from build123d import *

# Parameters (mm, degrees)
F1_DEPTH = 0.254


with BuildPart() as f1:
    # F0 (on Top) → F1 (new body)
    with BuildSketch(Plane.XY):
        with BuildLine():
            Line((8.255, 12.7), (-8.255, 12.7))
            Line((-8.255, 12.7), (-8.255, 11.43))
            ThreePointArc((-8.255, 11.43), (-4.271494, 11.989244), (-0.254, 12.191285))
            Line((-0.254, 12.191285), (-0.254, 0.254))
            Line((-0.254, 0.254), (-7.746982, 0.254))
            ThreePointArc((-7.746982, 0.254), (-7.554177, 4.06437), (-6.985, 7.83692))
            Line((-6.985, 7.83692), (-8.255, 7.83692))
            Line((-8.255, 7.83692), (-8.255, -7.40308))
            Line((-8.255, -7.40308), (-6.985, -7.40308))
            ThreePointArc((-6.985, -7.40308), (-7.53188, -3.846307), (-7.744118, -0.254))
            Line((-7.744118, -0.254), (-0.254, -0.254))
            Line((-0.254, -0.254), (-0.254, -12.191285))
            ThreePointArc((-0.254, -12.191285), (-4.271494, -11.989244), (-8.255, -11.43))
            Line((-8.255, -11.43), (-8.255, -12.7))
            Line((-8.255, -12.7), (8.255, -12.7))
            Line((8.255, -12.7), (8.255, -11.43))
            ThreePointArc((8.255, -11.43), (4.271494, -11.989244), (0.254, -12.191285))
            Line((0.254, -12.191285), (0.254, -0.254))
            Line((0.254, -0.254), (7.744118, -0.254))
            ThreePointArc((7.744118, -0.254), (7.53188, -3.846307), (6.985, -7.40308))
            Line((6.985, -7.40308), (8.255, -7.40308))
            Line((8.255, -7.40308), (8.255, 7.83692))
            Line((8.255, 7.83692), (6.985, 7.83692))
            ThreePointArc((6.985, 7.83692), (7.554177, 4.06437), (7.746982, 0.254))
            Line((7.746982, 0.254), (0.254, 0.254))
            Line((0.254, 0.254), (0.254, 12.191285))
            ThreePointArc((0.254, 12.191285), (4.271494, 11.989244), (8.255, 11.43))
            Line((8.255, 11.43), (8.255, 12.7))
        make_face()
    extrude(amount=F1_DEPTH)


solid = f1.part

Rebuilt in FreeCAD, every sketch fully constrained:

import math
import FreeCAD as App
import Part
import Sketcher
from FreeCAD import Vector
Q = App.Units.Quantity

doc = App.newDocument("Part")
body = doc.addObject("PartDesign::Body", "Body")

sketch1 = body.newObject("Sketcher::SketchObject", "Sketch")
sketch1.AttachmentSupport = (doc.getObject("XY_Plane"), [""])
sketch1.MapMode = "FlatFace"
sketch1.addGeometry([
    Part.LineSegment(Vector(8.255, 12.7, 0), Vector(-8.255, 12.7, 0)),
    Part.LineSegment(Vector(-8.255, 12.7, 0), Vector(-8.255, 11.43, 0)),
    Part.ArcOfCircle(Part.Circle(Vector(0.000013, -32.903706, 0), Vector(0, 0, 1), 45.095706), math.radians(90.322735), math.radians(100.54778)),
    Part.LineSegment(Vector(-0.254, 12.191285, 0), Vector(-0.254, 0.254, 0)),
    Part.LineSegment(Vector(-0.254, 0.254, 0), Vector(-7.746982, 0.254, 0)),
    Part.ArcOfCircle(Part.Circle(Vector(30.733964, 0.216924, 0), Vector(0, 0, 1), 38.480964), math.radians(168.578809), math.radians(179.944797)),
    Part.LineSegment(Vector(-6.985, 7.83692, 0), Vector(-8.255, 7.83692, 0)),
    Part.LineSegment(Vector(-8.255, 7.83692, 0), Vector(-8.255, -7.40308, 0)),
    Part.LineSegment(Vector(-8.255, -7.40308, 0), Vector(-6.985, -7.40308, 0)),
    Part.ArcOfCircle(Part.Circle(Vector(30.733882, 0.216905, 0), Vector(0, 0, 1), 38.480881), math.radians(-179.298832), math.radians(-168.5788)),
    Part.LineSegment(Vector(-7.744118, -0.254, 0), Vector(-0.254, -0.254, 0)),
    Part.LineSegment(Vector(-0.254, -0.254, 0), Vector(-0.254, -12.191285, 0)),
    Part.ArcOfCircle(Part.Circle(Vector(0.000013, 32.903706, 0), Vector(0, 0, 1), 45.095706), math.radians(-100.54778), math.radians(-90.322735)),
    Part.LineSegment(Vector(-8.255, -11.43, 0), Vector(-8.255, -12.7, 0)),
    Part.LineSegment(Vector(-8.255, -12.7, 0), Vector(8.255, -12.7, 0)),
    Part.LineSegment(Vector(8.255, -12.7, 0), Vector(8.255, -11.43, 0)),
    Part.ArcOfCircle(Part.Circle(Vector(-0.000013, 32.903706, 0), Vector(0, 0, 1), 45.095706), math.radians(-89.677265), math.radians(-79.45222)),
    Part.LineSegment(Vector(0.254, -12.191285, 0), Vector(0.254, -0.254, 0)),
    Part.LineSegment(Vector(0.254, -0.254, 0), Vector(7.744118, -0.254, 0)),
    Part.ArcOfCircle(Part.Circle(Vector(-30.733882, 0.216905, 0), Vector(0, 0, 1), 38.480881), math.radians(-11.4212), math.radians(-0.701168)),
    Part.LineSegment(Vector(6.985, -7.40308, 0), Vector(8.255, -7.40308, 0)),
    Part.LineSegment(Vector(8.255, -7.40308, 0), Vector(8.255, 7.83692, 0)),
    Part.LineSegment(Vector(8.255, 7.83692, 0), Vector(6.985, 7.83692, 0)),
    Part.ArcOfCircle(Part.Circle(Vector(-30.733964, 0.216924, 0), Vector(0, 0, 1), 38.480964), math.radians(0.055203), math.radians(11.421191)),
    Part.LineSegment(Vector(7.746982, 0.254, 0), Vector(0.254, 0.254, 0)),
    Part.LineSegment(Vector(0.254, 0.254, 0), Vector(0.254, 12.191285, 0)),
    Part.ArcOfCircle(Part.Circle(Vector(-0.000013, -32.903706, 0), Vector(0, 0, 1), 45.095706), math.radians(79.45222), math.radians(89.677265)),
    Part.LineSegment(Vector(8.255, 11.43, 0), Vector(8.255, 12.7, 0)),
], False)
sketch1.addConstraint([
    Sketcher.Constraint("Coincident", 0, 2, 1, 1),
    Sketcher.Constraint("Coincident", 1, 2, 2, 2),
    Sketcher.Constraint("Coincident", 2, 1, 3, 1),
    Sketcher.Constraint("Coincident", 3, 2, 4, 1),
    Sketcher.Constraint("Coincident", 4, 2, 5, 2),
    Sketcher.Constraint("Coincident", 5, 1, 6, 1),
    Sketcher.Constraint("Coincident", 6, 2, 7, 1),
    Sketcher.Constraint("Coincident", 7, 2, 8, 1),
    Sketcher.Constraint("Coincident", 8, 2, 9, 2),
    Sketcher.Constraint("Coincident", 9, 1, 10, 1),
    Sketcher.Constraint("Coincident", 10, 2, 11, 1),
    Sketcher.Constraint("Coincident", 11, 2, 12, 2),
    Sketcher.Constraint("Coincident", 12, 1, 13, 1),
    Sketcher.Constraint("Coincident", 13, 2, 14, 1),
    Sketcher.Constraint("Coincident", 14, 2, 15, 1),
    Sketcher.Constraint("Coincident", 15, 2, 16, 2),
    Sketcher.Constraint("Coincident", 16, 1, 17, 1),
    Sketcher.Constraint("Coincident", 17, 2, 18, 1),
    Sketcher.Constraint("Coincident", 18, 2, 19, 2),
    Sketcher.Constraint("Coincident", 19, 1, 20, 1),
    Sketcher.Constraint("Coincident", 20, 2, 21, 1),
    Sketcher.Constraint("Coincident", 21, 2, 22, 1),
    Sketcher.Constraint("Coincident", 22, 2, 23, 2),
    Sketcher.Constraint("Coincident", 23, 1, 24, 1),
    Sketcher.Constraint("Coincident", 24, 2, 25, 1),
    Sketcher.Constraint("Coincident", 25, 2, 26, 2),
    Sketcher.Constraint("Coincident", 26, 1, 27, 1),
    Sketcher.Constraint("Coincident", 27, 2, 0, 1),
    Sketcher.Constraint("Horizontal", 0),
    Sketcher.Constraint("Vertical", 1),
    Sketcher.Constraint("Vertical", 3),
    Sketcher.Constraint("Horizontal", 4),
    Sketcher.Constraint("Horizontal", 6),
    Sketcher.Constraint("Vertical", 7),
    Sketcher.Constraint("Horizontal", 8),
    Sketcher.Constraint("Horizontal", 10),
    Sketcher.Constraint("Vertical", 11),
    Sketcher.Constraint("Vertical", 13),
    Sketcher.Constraint("Horizontal", 14),
    Sketcher.Constraint("Vertical", 15),
    Sketcher.Constraint("Vertical", 17),
    Sketcher.Constraint("Horizontal", 18),
    Sketcher.Constraint("Horizontal", 20),
    Sketcher.Constraint("Vertical", 21),
    Sketcher.Constraint("Horizontal", 22),
    Sketcher.Constraint("Horizontal", 24),
    Sketcher.Constraint("Vertical", 25),
    Sketcher.Constraint("Vertical", 27),
    Sketcher.Constraint("Equal", 2, 12),
    Sketcher.Constraint("Equal", 12, 16),
    Sketcher.Constraint("Equal", 9, 19),
    Sketcher.Constraint("Equal", 5, 23),
    Sketcher.Constraint("Equal", 16, 26),
    Sketcher.Constraint("Symmetric", 2, 3, 16, 3, -1, 1),
    Sketcher.Constraint("Symmetric", 12, 3, 26, 3, -1, 1),
    Sketcher.Constraint("Symmetric", 0, 2, 14, 2, -1, 1),
    Sketcher.Constraint("Symmetric", 3, 2, 17, 2, -1, 1),
    Sketcher.Constraint("Symmetric", 10, 2, 24, 2, -1, 1),
    Sketcher.Constraint("Symmetric", 12, 3, 16, 3, -2),
    Sketcher.Constraint("Symmetric", 9, 3, 19, 3, -2),
    Sketcher.Constraint("Symmetric", 5, 3, 23, 3, -2),
    Sketcher.Constraint("Symmetric", 10, 2, 17, 2, -2),
    Sketcher.Constraint("Symmetric", 7, 2, 20, 2, -2),
    Sketcher.Constraint("Horizontal", 12, 1, 15, 2),
    Sketcher.Constraint("Horizontal", 6, 2, 21, 2),
    Sketcher.Constraint("Horizontal", 1, 2, 26, 1),
    Sketcher.Constraint("Vertical", 1, 2, 6, 2),
    Sketcher.Constraint("Vertical", 5, 1, 8, 2),
    Sketcher.Constraint("Equal", 22, 1),
    Sketcher.Constraint("DistanceY", 7, 2, 7, 1, Q("0.6 in")),
    Sketcher.Constraint("DistanceX", 0, 2, 0, 1, Q("0.65 in")),
    Sketcher.Constraint("DistanceX", 6, 2, 6, 1, Q("0.05 in")),
    Sketcher.Constraint("DistanceY", -1, 1, 0, 2, Q("0.5 in")),
    Sketcher.Constraint("DistanceX", 2, 1, -1, 1, Q("0.01 in")),
    Sketcher.Constraint("DistanceY", -1, 1, 3, 2, Q("0.01 in")),
    Sketcher.Constraint("Radius", 9, 38.480881),
    Sketcher.Constraint("Radius", 2, 45.095706),
    Sketcher.Constraint("Radius", 5, 38.480964),
    Sketcher.Constraint("DistanceX", 4, 2, 4, 1, 7.492982),
    Sketcher.Constraint("DistanceX", 10, 1, 10, 2, 7.490118),
    Sketcher.Constraint("DistanceY", 9, 3, 12, 3, 32.6868),
    Sketcher.Constraint("DistanceY", 3, 2, 3, 1, 11.937285),
])
pad1 = body.newObject("PartDesign::Pad", "Pad")
pad1.Profile = sketch1
pad1.Length = Q("0.01 in")

doc.recompute()
